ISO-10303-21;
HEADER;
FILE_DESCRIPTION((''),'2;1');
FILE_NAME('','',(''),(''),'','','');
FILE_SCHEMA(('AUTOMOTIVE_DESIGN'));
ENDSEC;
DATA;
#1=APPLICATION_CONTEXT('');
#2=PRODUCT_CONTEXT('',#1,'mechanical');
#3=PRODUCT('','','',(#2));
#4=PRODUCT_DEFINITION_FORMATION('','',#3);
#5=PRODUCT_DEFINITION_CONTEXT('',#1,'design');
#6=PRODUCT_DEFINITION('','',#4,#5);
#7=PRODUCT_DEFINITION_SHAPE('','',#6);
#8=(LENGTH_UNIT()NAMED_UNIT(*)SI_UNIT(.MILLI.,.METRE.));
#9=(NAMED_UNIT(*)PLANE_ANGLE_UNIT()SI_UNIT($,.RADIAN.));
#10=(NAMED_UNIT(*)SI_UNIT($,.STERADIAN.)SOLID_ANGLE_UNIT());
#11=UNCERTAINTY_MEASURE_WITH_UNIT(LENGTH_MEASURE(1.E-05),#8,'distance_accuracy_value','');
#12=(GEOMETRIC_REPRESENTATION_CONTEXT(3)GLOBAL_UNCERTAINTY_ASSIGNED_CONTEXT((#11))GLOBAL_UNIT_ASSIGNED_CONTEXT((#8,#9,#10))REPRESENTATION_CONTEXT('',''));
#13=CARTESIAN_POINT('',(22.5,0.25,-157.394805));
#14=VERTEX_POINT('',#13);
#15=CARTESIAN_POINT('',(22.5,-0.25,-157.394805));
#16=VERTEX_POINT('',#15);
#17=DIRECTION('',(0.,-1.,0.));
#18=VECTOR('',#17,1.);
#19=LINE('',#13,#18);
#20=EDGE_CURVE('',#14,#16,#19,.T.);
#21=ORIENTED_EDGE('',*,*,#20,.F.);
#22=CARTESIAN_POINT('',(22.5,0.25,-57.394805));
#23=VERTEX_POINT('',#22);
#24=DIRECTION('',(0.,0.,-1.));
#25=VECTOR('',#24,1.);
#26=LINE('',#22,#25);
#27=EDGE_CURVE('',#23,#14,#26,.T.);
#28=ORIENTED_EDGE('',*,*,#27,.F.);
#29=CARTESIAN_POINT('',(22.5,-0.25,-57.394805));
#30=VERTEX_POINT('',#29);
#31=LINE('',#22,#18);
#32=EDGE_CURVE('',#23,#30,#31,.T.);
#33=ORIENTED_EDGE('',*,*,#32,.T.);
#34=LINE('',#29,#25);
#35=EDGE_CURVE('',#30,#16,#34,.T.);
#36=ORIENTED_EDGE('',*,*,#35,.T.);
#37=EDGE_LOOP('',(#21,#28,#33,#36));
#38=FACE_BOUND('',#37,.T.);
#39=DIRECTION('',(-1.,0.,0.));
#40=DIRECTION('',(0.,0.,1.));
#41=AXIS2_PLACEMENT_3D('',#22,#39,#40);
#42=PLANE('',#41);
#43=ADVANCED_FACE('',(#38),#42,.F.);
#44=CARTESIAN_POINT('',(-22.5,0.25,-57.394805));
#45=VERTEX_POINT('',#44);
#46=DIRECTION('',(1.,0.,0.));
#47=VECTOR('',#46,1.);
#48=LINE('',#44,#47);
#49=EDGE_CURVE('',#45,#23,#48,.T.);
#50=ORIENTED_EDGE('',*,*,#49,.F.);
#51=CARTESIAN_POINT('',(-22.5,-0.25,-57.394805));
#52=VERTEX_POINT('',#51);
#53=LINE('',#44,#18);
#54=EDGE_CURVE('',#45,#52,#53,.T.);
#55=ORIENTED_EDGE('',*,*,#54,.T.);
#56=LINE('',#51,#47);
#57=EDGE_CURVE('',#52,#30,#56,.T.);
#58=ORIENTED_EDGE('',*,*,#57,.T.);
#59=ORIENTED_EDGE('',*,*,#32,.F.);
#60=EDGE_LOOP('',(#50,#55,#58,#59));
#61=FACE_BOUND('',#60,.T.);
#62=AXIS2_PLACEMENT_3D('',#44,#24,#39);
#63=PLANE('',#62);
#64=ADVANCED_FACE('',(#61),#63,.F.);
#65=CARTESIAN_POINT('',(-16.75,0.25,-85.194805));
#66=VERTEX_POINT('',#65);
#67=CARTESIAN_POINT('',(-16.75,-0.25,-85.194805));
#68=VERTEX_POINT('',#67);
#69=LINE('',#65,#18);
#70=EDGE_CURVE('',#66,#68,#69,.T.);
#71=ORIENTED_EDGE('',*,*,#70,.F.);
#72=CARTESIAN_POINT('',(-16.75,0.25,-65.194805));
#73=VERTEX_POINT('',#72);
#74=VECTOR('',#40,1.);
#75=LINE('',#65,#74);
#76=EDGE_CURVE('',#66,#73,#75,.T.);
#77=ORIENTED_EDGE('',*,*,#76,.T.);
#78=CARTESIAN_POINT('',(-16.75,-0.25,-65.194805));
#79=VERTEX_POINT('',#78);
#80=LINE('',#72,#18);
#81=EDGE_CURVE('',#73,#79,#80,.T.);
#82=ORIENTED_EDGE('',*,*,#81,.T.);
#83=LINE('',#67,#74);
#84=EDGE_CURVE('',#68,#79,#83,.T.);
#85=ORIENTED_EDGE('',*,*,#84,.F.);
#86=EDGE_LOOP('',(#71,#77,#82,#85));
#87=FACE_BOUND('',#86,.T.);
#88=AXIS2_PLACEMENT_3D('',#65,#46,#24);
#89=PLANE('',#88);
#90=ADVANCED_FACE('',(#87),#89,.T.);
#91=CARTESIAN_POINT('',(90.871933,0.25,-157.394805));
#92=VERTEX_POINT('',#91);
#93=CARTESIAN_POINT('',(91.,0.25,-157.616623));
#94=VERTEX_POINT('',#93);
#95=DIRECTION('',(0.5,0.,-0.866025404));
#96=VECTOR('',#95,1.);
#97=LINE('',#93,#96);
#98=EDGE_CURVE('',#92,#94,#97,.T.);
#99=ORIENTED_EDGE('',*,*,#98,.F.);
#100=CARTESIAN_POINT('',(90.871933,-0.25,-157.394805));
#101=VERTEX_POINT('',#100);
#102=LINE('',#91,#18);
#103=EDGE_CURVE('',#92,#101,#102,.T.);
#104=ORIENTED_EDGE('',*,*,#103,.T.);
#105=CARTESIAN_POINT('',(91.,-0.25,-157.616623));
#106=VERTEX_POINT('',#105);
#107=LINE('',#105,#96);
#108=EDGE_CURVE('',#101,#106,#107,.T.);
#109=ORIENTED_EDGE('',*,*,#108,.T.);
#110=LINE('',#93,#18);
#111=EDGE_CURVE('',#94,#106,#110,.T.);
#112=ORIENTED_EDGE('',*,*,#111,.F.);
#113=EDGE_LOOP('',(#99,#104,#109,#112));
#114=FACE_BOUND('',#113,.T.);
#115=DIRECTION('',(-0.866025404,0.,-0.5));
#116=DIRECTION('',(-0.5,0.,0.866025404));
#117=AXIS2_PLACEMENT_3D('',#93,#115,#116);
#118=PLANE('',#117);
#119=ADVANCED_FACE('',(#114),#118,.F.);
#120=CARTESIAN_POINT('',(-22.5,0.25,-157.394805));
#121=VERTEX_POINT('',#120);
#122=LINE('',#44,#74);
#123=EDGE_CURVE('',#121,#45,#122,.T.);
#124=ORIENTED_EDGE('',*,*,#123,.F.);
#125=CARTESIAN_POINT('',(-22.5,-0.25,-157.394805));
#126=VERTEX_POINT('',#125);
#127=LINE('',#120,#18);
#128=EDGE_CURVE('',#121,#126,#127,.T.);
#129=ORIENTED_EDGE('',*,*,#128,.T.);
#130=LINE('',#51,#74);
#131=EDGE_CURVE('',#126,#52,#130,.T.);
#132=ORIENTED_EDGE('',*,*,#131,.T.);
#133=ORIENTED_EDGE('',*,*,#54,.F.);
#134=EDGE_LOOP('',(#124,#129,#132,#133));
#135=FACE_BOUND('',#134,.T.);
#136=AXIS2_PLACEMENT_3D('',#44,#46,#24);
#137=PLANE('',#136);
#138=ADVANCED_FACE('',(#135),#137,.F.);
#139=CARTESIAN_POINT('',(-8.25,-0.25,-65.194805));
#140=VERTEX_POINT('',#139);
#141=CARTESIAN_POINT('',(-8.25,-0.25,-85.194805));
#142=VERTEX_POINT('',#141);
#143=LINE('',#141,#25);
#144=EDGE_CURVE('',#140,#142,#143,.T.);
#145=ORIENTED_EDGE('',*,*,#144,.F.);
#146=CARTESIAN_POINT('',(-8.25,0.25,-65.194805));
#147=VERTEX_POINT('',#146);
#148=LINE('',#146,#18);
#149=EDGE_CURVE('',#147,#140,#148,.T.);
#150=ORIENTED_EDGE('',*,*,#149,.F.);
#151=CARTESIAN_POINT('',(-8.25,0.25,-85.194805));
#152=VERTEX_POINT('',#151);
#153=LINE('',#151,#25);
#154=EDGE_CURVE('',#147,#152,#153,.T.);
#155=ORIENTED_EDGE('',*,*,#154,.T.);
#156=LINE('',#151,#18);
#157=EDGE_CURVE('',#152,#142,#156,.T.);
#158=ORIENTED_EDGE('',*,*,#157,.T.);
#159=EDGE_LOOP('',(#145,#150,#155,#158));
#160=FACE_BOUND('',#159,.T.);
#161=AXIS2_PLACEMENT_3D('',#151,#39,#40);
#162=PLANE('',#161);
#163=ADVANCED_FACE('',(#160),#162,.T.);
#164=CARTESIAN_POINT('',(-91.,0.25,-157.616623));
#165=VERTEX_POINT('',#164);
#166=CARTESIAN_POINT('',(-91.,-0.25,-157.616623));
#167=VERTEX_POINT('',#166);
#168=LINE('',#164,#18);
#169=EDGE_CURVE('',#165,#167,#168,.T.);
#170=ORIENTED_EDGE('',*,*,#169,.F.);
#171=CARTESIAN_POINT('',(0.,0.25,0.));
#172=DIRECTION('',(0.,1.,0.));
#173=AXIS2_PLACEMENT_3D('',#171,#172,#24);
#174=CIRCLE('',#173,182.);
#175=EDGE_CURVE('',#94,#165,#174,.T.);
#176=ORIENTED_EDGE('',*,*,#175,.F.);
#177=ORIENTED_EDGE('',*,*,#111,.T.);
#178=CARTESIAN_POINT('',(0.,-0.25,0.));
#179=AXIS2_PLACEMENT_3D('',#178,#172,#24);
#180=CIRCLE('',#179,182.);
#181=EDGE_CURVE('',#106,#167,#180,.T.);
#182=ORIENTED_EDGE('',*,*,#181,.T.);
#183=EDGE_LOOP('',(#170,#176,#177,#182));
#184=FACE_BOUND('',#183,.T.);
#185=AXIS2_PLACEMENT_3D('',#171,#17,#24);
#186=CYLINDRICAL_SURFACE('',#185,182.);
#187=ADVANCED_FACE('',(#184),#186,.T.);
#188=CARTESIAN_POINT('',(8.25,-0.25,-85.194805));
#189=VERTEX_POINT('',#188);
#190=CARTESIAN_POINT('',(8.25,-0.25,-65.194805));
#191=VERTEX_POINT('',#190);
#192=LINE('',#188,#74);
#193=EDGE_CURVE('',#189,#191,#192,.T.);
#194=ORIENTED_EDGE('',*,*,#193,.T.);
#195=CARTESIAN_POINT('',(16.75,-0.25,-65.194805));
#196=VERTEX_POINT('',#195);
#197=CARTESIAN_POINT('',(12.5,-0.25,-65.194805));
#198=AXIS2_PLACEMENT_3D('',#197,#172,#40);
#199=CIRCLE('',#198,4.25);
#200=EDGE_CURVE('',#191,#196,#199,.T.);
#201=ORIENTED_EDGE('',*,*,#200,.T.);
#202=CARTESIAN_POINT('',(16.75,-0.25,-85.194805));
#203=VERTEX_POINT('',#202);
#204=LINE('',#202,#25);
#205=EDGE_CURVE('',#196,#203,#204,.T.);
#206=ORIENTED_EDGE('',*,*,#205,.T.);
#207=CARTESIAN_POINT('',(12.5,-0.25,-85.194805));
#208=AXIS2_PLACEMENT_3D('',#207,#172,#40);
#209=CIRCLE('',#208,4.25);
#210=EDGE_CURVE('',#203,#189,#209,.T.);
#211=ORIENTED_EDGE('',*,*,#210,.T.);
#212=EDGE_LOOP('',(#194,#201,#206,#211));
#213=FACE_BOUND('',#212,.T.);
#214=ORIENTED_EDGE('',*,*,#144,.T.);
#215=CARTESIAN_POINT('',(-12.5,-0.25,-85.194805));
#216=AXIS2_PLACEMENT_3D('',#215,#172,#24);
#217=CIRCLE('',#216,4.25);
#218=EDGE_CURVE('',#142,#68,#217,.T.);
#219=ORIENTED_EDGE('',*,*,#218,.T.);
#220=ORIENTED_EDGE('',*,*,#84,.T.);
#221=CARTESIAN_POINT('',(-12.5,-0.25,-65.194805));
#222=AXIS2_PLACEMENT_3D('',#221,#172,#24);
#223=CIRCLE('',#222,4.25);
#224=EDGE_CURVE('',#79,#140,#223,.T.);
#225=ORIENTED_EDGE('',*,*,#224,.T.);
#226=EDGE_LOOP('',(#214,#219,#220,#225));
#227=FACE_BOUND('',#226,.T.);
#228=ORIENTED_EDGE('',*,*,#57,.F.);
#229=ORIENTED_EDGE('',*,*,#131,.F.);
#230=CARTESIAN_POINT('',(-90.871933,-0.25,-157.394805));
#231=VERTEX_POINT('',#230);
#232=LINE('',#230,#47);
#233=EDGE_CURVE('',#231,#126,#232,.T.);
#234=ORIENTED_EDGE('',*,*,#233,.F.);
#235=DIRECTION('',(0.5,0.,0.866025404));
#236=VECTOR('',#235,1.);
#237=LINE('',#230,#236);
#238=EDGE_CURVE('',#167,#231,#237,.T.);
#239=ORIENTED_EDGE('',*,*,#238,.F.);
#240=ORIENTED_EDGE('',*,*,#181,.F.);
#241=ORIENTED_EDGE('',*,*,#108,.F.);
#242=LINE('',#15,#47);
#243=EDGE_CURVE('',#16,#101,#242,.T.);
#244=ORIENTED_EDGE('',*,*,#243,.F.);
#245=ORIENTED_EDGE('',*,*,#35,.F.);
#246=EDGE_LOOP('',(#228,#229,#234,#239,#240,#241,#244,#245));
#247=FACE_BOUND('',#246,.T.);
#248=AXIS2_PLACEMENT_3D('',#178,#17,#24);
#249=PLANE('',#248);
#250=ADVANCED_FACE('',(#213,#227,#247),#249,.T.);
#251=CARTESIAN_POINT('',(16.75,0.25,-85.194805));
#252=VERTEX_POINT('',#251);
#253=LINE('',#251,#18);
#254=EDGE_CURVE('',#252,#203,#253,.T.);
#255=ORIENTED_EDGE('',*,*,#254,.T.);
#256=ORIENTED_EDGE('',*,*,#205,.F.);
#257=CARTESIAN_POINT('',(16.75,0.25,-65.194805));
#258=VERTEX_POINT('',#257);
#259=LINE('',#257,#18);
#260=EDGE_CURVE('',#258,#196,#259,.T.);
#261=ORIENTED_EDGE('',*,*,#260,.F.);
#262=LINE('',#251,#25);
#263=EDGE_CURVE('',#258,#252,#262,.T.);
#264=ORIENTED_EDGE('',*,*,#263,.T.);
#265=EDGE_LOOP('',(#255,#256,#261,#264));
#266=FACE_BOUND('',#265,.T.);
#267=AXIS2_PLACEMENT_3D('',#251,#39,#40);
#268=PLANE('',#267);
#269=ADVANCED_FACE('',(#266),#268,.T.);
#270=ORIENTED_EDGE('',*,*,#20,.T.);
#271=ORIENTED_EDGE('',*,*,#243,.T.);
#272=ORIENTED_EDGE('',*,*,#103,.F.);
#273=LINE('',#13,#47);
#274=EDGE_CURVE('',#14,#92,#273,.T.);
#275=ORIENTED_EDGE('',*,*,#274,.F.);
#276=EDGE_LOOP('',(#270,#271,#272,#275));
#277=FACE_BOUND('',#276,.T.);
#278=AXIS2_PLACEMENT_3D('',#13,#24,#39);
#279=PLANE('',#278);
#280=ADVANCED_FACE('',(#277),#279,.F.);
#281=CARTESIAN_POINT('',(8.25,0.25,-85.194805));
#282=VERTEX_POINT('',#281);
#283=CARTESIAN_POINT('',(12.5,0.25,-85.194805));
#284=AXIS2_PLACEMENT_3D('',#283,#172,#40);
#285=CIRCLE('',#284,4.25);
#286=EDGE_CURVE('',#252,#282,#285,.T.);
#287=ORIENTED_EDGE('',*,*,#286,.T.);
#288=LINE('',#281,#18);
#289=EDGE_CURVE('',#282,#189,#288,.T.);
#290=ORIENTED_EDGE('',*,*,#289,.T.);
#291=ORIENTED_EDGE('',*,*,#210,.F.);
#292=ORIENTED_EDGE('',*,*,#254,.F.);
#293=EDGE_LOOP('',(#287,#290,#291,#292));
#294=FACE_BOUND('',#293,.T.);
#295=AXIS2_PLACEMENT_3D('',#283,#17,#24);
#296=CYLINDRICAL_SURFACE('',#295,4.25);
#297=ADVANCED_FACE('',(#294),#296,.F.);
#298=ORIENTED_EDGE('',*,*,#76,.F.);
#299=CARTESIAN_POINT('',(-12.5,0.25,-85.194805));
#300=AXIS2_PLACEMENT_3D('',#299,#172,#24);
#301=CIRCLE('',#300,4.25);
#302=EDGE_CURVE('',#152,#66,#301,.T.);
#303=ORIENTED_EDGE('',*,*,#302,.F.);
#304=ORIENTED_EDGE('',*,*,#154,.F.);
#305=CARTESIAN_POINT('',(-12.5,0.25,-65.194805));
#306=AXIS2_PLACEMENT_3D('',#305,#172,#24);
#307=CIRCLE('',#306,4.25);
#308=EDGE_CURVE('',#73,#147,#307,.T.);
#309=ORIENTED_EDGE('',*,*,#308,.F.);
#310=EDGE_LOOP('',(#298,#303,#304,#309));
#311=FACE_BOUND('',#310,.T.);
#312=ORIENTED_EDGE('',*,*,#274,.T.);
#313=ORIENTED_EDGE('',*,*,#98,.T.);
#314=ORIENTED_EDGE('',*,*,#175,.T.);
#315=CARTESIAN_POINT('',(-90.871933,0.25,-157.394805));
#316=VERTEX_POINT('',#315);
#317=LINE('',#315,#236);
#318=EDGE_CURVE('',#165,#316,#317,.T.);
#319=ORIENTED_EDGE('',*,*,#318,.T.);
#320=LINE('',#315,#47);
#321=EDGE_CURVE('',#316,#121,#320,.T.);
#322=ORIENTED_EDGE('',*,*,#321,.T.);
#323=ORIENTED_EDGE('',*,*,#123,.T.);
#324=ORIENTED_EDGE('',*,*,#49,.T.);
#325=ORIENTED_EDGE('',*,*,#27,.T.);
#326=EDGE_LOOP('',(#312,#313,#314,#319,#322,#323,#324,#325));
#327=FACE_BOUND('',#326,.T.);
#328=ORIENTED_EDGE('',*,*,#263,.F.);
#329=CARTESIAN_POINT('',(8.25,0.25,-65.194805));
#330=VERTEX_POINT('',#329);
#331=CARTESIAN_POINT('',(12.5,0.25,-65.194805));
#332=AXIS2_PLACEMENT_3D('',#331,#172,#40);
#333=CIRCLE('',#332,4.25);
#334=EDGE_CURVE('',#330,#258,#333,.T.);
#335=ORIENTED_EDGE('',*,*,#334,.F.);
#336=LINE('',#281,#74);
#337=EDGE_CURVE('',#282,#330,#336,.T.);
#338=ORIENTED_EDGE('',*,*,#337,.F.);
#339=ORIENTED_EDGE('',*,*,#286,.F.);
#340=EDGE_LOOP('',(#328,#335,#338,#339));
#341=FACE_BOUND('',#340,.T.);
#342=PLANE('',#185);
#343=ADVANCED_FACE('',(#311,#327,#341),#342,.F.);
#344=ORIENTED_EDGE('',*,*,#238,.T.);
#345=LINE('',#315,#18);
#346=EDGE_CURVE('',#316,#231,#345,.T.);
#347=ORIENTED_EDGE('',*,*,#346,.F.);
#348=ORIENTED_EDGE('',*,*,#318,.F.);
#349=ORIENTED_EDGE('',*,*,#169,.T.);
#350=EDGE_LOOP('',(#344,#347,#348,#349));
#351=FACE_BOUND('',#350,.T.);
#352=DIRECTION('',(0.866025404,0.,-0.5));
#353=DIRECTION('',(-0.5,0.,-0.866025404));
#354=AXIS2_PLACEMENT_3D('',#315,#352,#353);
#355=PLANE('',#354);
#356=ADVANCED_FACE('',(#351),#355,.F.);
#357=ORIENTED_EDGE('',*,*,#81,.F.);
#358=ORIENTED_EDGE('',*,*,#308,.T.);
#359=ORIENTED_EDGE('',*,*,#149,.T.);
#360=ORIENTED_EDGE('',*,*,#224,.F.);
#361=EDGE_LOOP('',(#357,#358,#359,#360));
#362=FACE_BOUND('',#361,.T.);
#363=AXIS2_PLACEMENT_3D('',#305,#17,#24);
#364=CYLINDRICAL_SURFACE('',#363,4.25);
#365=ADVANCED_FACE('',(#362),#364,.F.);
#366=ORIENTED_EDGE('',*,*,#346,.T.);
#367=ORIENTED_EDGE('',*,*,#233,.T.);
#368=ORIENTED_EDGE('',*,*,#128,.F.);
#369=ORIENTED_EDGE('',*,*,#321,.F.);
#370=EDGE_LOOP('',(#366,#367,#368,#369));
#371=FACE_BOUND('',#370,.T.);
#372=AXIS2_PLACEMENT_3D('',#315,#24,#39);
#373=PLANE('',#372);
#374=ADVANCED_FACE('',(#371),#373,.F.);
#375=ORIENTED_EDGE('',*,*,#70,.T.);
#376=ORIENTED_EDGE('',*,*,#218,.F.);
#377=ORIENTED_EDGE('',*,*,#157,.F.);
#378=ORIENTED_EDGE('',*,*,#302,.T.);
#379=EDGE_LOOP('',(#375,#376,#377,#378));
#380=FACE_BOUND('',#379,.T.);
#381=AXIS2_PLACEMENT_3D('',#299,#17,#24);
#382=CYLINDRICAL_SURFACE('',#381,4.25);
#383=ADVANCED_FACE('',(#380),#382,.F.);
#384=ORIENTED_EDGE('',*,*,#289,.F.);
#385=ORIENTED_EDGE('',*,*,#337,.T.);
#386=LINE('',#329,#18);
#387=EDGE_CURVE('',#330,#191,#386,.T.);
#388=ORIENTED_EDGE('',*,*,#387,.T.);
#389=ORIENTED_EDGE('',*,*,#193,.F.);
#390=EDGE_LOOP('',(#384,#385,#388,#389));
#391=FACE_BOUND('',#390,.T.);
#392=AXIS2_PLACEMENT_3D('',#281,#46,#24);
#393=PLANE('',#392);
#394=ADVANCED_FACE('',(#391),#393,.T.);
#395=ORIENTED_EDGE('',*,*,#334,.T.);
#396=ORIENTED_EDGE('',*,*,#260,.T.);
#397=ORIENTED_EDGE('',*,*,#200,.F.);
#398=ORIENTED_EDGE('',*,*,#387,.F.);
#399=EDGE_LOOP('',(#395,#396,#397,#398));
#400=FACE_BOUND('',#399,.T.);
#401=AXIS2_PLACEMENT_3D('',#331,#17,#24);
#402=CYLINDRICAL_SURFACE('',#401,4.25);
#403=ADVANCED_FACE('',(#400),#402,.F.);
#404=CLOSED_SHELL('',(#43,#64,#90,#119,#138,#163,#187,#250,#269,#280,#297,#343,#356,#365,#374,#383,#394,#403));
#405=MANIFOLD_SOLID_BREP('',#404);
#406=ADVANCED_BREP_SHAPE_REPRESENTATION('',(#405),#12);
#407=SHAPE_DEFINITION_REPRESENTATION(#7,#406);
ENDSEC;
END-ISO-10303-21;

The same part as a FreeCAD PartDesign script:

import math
import FreeCAD as App
import Part
import Sketcher
Q = App.Units.Quantity

doc = App.newDocument("Part")
body = doc.addObject("PartDesign::Body", "Body")

sketch1 = body.newObject("Sketcher::SketchObject", "Sketch")
sketch1.AttachmentSupport = (doc.getObject("XZ_Plane"), [""])
sketch1.MapMode = "FlatFace"
sketch1.addGeometry(Part.LineSegment(App.Vector(-22.5, -57.394805, 0), App.Vector(22.5, -57.394805, 0)), False)
sketch1.addGeometry(Part.LineSegment(App.Vector(22.5, -57.394805, 0), App.Vector(22.5, -157.394805, 0)), False)
sketch1.addGeometry(Part.LineSegment(App.Vector(22.5, -157.394805, 0), App.Vector(90.871933, -157.394805, 0)), False)
sketch1.addGeometry(Part.LineSegment(App.Vector(90.871933, -157.394805, 0), App.Vector(91, -157.616623, 0)), False)
sketch1.addGeometry(Part.ArcOfCircle(Part.Circle(App.Vector(0, 0, 0), App.Vector(0, 0, 1), 182), math.radians(-120), math.radians(-60)), False)
sketch1.addGeometry(Part.LineSegment(App.Vector(-91, -157.616623, 0), App.Vector(-90.871933, -157.394805, 0)), False)
sketch1.addGeometry(Part.LineSegment(App.Vector(-90.871933, -157.394805, 0), App.Vector(-22.5, -157.394805, 0)), False)
sketch1.addGeometry(Part.LineSegment(App.Vector(-22.5, -157.394805, 0), App.Vector(-22.5, -57.394805, 0)), False)
sketch1.addGeometry(Part.LineSegment(App.Vector(-16.75, -65.194805, 0), App.Vector(-16.75, -85.194805, 0)), False)
sketch1.addGeometry(Part.ArcOfCircle(Part.Circle(App.Vector(-12.5, -85.194805, 0), App.Vector(0, 0, 1), 4.25), math.radians(180), math.radians(360)), False)
sketch1.addGeometry(Part.LineSegment(App.Vector(-8.25, -85.194805, 0), App.Vector(-8.25, -65.194805, 0)), False)
sketch1.addGeometry(Part.ArcOfCircle(Part.Circle(App.Vector(-12.5, -65.194805, 0), App.Vector(0, 0, 1), 4.25), math.radians(0), math.radians(180)), False)
sketch1.addGeometry(Part.ArcOfCircle(Part.Circle(App.Vector(12.5, -85.194805, 0), App.Vector(0, 0, 1), 4.25), math.radians(180), math.radians(360)), False)
sketch1.addGeometry(Part.LineSegment(App.Vector(16.75, -85.194805, 0), App.Vector(16.75, -65.194805, 0)), False)
sketch1.addGeometry(Part.ArcOfCircle(Part.Circle(App.Vector(12.5, -65.194805, 0), App.Vector(0, 0, 1), 4.25), math.radians(0), math.radians(180)), False)
sketch1.addGeometry(Part.LineSegment(App.Vector(8.25, -65.194805, 0), App.Vector(8.25, -85.194805, 0)), False)
sketch1.addConstraint(Sketcher.Constraint("Coincident", 0, 2, 1, 1))
sketch1.addConstraint(Sketcher.Constraint("Coincident", 1, 2, 2, 1))
sketch1.addConstraint(Sketcher.Constraint("Coincident", 2, 2, 3, 1))
sketch1.addConstraint(Sketcher.Constraint("Coincident", 3, 2, 4, 2))
sketch1.addConstraint(Sketcher.Constraint("Coincident", 4, 1, 5, 1))
sketch1.addConstraint(Sketcher.Constraint("Coincident", 5, 2, 6, 1))
sketch1.addConstraint(Sketcher.Constraint("Coincident", 6, 2, 7, 1))
sketch1.addConstraint(Sketcher.Constraint("Coincident", 7, 2, 0, 1))
sketch1.addConstraint(Sketcher.Constraint("Tangent", 8, 2, 9, 1))
sketch1.addConstraint(Sketcher.Constraint("Tangent", 9, 2, 10, 1))
sketch1.addConstraint(Sketcher.Constraint("Tangent", 10, 2, 11, 1))
sketch1.addConstraint(Sketcher.Constraint("Tangent", 11, 2, 8, 1))
sketch1.addConstraint(Sketcher.Constraint("Tangent", 12, 2, 13, 1))
sketch1.addConstraint(Sketcher.Constraint("Tangent", 13, 2, 14, 1))
sketch1.addConstraint(Sketcher.Constraint("Tangent", 14, 2, 15, 1))
sketch1.addConstraint(Sketcher.Constraint("Tangent", 15, 2, 12, 1))
sketch1.addConstraint(Sketcher.Constraint("Horizontal", 0))
sketch1.addConstraint(Sketcher.Constraint("Vertical", 1))
sketch1.addConstraint(Sketcher.Constraint("Horizontal", 2))
sketch1.addConstraint(Sketcher.Constraint("Horizontal", 6))
sketch1.addConstraint(Sketcher.Constraint("Vertical", 7))
sketch1.addConstraint(Sketcher.Constraint("Vertical", 8))
sketch1.addConstraint(Sketcher.Constraint("Vertical", 10))
sketch1.addConstraint(Sketcher.Constraint("Vertical", 13))
sketch1.addConstraint(Sketcher.Constraint("Vertical", 15))
sketch1.addConstraint(Sketcher.Constraint("Coincident", 4, 3, -1, 1))
sketch1.addConstraint(Sketcher.Constraint("Equal", 11, 12))
sketch1.addConstraint(Sketcher.Constraint("Symmetric", 9, 3, 12, 3, -2))
sketch1.addConstraint(Sketcher.Constraint("Symmetric", 2, 2, 5, 2, -2))
sketch1.addConstraint(Sketcher.Constraint("Horizontal", 11, 3, 14, 3))
sketch1.addConstraint(Sketcher.Constraint("Horizontal", 3, 2, 4, 1))
sketch1.addConstraint(Sketcher.Constraint("Equal", 2, 6))
sketch1.addConstraint(Sketcher.Constraint("Radius", 4, Q("182 mm")))
sketch1.addConstraint(Sketcher.Constraint("DistanceX", 0, 1, 0, 2, Q("45 mm")))
sketch1.addConstraint(Sketcher.Constraint("DistanceY", 1, 2, 1, 1, Q("100 mm")))
sketch1.addConstraint(Sketcher.Constraint("DistanceY", 8, 2, 8, 1, Q("20 mm")))
sketch1.addConstraint(Sketcher.Constraint("Angle", 3, Q("-60 deg")))
sketch1.addConstraint(Sketcher.Constraint("Radius", 9, Q("4.25 mm")))
sketch1.addConstraint(Sketcher.Constraint("DistanceX", -1, 1, 3, 2, Q("91 mm")))
sketch1.addConstraint(Sketcher.Constraint("DistanceX", 9, 3, 12, 3, Q("25 mm")))
sketch1.addConstraint(Sketcher.Constraint("DistanceY", 14, 3, 0, 2, Q("7.8 mm")))
sketch1.addConstraint(Sketcher.Constraint("DistanceX", 2, 1, 2, 2, Q("68.371933 mm")))
pad1 = body.newObject("PartDesign::Pad", "Pad")
pad1.Profile = sketch1
pad1.Length = 0.5
pad1.Midplane = True

doc.recompute()
